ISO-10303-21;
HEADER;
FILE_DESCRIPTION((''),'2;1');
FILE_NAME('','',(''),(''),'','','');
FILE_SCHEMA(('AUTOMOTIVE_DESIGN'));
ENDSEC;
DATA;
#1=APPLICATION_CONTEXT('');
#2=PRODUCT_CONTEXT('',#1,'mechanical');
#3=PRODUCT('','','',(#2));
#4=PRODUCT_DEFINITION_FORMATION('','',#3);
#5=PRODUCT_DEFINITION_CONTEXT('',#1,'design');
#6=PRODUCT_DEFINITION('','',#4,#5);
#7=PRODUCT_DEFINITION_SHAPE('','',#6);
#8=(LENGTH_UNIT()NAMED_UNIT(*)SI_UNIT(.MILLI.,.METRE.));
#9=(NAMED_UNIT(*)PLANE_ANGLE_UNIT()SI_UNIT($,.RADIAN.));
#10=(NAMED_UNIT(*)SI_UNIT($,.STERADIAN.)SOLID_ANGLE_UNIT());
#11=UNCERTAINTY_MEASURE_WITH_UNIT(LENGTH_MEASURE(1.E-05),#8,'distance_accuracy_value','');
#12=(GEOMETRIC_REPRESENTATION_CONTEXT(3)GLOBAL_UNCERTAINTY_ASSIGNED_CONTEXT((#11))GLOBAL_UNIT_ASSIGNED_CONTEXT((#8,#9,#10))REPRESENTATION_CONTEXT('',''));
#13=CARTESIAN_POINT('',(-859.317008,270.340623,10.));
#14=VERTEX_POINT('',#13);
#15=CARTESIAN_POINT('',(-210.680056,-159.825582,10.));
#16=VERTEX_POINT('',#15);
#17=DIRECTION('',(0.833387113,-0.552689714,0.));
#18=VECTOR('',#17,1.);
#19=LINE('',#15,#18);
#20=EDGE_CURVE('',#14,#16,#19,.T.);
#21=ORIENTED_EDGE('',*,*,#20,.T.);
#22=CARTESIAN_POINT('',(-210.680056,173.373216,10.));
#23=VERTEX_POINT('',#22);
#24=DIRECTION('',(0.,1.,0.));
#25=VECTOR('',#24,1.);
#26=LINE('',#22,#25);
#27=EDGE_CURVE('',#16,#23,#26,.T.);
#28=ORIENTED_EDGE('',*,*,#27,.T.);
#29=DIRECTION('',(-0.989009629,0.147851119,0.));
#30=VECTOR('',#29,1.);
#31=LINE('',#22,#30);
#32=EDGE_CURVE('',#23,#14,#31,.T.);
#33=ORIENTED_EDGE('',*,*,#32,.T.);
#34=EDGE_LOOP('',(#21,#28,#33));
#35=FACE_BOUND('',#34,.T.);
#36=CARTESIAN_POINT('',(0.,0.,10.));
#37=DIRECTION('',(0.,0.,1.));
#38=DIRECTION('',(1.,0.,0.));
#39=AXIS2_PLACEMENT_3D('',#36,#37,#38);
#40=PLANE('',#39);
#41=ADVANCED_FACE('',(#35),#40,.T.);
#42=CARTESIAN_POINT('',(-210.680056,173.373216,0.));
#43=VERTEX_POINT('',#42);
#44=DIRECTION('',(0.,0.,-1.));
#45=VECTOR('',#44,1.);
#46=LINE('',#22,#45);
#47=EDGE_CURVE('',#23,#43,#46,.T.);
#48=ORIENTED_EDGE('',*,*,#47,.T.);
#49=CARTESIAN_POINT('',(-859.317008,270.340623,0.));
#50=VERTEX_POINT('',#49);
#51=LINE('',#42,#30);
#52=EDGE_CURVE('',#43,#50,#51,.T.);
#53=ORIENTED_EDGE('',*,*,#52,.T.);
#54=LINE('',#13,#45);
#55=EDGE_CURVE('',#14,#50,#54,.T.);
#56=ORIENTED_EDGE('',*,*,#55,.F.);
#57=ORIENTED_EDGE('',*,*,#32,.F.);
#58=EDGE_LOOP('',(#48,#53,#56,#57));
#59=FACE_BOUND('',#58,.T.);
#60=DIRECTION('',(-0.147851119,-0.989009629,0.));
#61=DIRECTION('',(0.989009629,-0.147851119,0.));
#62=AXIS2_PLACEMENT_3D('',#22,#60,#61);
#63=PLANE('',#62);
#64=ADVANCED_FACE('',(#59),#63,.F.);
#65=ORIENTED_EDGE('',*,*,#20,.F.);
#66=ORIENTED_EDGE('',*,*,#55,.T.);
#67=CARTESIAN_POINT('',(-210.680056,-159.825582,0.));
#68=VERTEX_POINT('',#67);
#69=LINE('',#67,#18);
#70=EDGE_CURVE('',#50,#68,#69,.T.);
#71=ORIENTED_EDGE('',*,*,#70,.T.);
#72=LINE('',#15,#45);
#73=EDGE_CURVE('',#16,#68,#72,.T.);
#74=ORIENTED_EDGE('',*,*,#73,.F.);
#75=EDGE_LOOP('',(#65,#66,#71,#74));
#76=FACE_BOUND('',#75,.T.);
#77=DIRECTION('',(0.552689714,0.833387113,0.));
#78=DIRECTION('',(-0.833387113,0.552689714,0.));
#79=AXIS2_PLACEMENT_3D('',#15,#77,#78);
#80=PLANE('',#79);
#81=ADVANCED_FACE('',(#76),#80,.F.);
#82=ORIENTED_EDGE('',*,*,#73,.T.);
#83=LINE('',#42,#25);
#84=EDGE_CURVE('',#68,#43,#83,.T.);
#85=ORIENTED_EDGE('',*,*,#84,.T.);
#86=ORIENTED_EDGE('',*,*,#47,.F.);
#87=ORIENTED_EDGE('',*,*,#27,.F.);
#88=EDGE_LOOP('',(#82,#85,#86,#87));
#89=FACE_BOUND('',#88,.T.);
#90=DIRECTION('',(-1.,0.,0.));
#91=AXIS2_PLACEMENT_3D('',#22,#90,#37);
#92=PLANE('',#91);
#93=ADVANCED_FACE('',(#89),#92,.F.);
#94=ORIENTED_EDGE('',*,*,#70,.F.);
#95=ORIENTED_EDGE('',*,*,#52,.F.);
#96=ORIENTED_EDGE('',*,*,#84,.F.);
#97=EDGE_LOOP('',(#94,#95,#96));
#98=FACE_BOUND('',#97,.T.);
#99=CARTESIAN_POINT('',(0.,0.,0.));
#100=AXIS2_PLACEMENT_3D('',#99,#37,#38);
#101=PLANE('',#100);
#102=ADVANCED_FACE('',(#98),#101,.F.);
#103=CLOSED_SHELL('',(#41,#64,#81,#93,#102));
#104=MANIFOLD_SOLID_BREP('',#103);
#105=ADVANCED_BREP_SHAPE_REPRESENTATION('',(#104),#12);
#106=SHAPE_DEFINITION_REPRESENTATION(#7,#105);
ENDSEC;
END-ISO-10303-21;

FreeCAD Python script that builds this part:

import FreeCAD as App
import Part
import Sketcher

doc = App.newDocument("Part")
params = doc.addObject("Spreadsheet::Sheet", "Params")
for row, (alias, value) in enumerate([
    ("pad1_length", "10 mm"),
], start=1):
    params.set(f"A{row}", alias)
    params.set(f"B{row}", "=" + value)
    params.setAlias(f"B{row}", alias)

body = doc.addObject("PartDesign::Body", "Body")

# Sketch on XY plane
sketch1 = body.newObject("Sketcher::SketchObject", "Sketch")
sketch1.AttachmentSupport = (doc.getObject("XY_Plane"), [""])
sketch1.MapMode = "FlatFace"
sketch1.addGeometry(Part.LineSegment(App.Vector(-210.680056, -159.825582, 0), App.Vector(-210.680056, 173.373216, 0)), False)
sketch1.addGeometry(Part.LineSegment(App.Vector(-210.680056, 173.373216, 0), App.Vector(-859.317008, 270.340623, 0)), False)
sketch1.addGeometry(Part.LineSegment(App.Vector(-859.317008, 270.340623, 0), App.Vector(-210.680056, -159.825582, 0)), False)
sketch1.addConstraint(Sketcher.Constraint("Coincident", 0, 2, 1, 1))
sketch1.addConstraint(Sketcher.Constraint("Coincident", 1, 2, 2, 1))
sketch1.addConstraint(Sketcher.Constraint("Coincident", 2, 2, 0, 1))
sketch1.addConstraint(Sketcher.Constraint("Vertical", 0))
sketch1.addConstraint(Sketcher.Constraint("DistanceY", 0, 1, 0, 2, 333.198798))
sketch1.addConstraint(Sketcher.Constraint("Distance", 1, 655.844931))
sketch1.addConstraint(Sketcher.Constraint("DistanceX", 1, 2, -1, 1, 859.317008))
sketch1.addConstraint(Sketcher.Constraint("DistanceY", 2, 2, -1, 1, 159.825582))
sketch1.addConstraint(Sketcher.Constraint("DistanceX", 1, 2, 0, 2, 648.636952))
pad1 = body.newObject("PartDesign::Pad", "Pad")
pad1.Profile = sketch1
pad1.setExpression("Length", "Params.pad1_length")

doc.recompute()
